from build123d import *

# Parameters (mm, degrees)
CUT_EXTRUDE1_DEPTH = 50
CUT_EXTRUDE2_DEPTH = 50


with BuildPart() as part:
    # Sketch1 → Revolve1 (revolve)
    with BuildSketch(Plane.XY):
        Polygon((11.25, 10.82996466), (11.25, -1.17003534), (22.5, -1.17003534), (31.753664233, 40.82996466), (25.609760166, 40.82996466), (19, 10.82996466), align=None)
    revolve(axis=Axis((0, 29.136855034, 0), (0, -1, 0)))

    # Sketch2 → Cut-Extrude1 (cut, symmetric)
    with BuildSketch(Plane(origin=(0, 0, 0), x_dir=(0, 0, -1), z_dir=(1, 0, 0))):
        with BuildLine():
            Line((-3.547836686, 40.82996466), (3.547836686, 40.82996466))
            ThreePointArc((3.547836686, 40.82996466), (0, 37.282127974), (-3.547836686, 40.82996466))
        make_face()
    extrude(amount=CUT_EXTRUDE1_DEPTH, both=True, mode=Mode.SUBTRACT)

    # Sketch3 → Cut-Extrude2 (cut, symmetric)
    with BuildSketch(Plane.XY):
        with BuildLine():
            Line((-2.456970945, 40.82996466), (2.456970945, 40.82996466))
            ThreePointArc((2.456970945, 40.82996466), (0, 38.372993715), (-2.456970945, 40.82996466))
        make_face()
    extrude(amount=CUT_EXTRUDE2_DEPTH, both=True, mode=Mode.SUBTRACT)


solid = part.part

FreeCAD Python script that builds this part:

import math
import FreeCAD as App
import Part
import Sketcher
from FreeCAD import Vector
Q = App.Units.Quantity

doc = App.newDocument("Part")
params = doc.addObject("Spreadsheet::Sheet", "Params")
for row, (alias, value) in enumerate([
    ("sketch1_height", "12 mm"),
    ("sketch1_width", "11.25 mm"),
    ("sketch1_width2", "7.75 mm"),
    ("revolution_angle", "360 deg"),
    ("pocket1_length", "100 mm"),
    ("pocket2_length", "100 mm"),
], start=1):
    params.set(f"A{row}", alias)
    params.set(f"B{row}", "=" + value)
    params.setAlias(f"B{row}", alias)

body = doc.addObject("PartDesign::Body", "Body")

sketch1 = body.newObject("Sketcher::SketchObject", "Sketch")
sketch1.AttachmentSupport = (doc.getObject("XY_Plane"), [""])
sketch1.MapMode = "FlatFace"
sketch1.addGeometry(Part.LineSegment(Vector(11, 11, 0), Vector(11, -1, 0)), False)
sketch1.addGeometry(Part.LineSegment(Vector(11, -1, 0), Vector(22, -1, 0)), False)
sketch1.addGeometry(Part.LineSegment(Vector(22, -1, 0), Vector(32, 41, 0)), False)
sketch1.addGeometry(Part.LineSegment(Vector(32, 41, 0), Vector(26, 41, 0)), False)
sketch1.addGeometry(Part.LineSegment(Vector(26, 41, 0), Vector(19, 11, 0)), False)
sketch1.addGeometry(Part.LineSegment(Vector(19, 11, 0), Vector(11, 11, 0)), False)
sketch1.addConstraint(Sketcher.Constraint("Coincident", 0, 2, 1, 1))
sketch1.addConstraint(Sketcher.Constraint("Coincident", 1, 2, 2, 1))
sketch1.addConstraint(Sketcher.Constraint("Coincident", 2, 2, 3, 1))
sketch1.addConstraint(Sketcher.Constraint("Coincident", 3, 2, 4, 1))
sketch1.addConstraint(Sketcher.Constraint("Coincident", 4, 2, 5, 1))
sketch1.addConstraint(Sketcher.Constraint("Coincident", 5, 2, 0, 1))
sketch1.addConstraint(Sketcher.Constraint("Vertical", 0))
sketch1.addConstraint(Sketcher.Constraint("Horizontal", 1))
sketch1.addConstraint(Sketcher.Constraint("Horizontal", 3))
sketch1.addConstraint(Sketcher.Constraint("Horizontal", 5))
sketch1.addConstraint(Sketcher.Constraint("Parallel", 2, 4))
sketch1.addConstraint(Sketcher.Constraint("DistanceY", 0, 2, 0, 1, Q("12 mm")))
sketch1.addConstraint(Sketcher.Constraint("DistanceX", -1, 1, 4, 2, Q("19 mm")))
sketch1.addConstraint(Sketcher.Constraint("DistanceY", 1, 2, 2, 2, Q("42 mm")))
sketch1.addConstraint(Sketcher.Constraint("DistanceX", 1, 1, 1, 2, Q("11.25 mm")))
sketch1.addConstraint(Sketcher.Constraint("DistanceX", 5, 2, 5, 1, Q("7.75 mm")))
sketch1.addConstraint(Sketcher.Constraint("Distance", 2, Q("43.007328 mm")))
sketch1.addConstraint(Sketcher.Constraint("DistanceY", 0, 2, -1, 1, Q("1.170035 mm")))
sketch1.setExpression("Constraints[11]", "Params.sketch1_height")
sketch1.setExpression("Constraints[14]", "Params.sketch1_width")
sketch1.setExpression("Constraints[15]", "Params.sketch1_width2")
revolution = body.newObject("PartDesign::Revolution", "Revolution")
revolution.Profile = sketch1
revolution.ReferenceAxis = (sketch1, ["V_Axis"])
revolution.setExpression("Angle", "Params.revolution_angle")

sketch2 = body.newObject("Sketcher::SketchObject", "Sketch001")
sketch2.AttachmentSupport = (doc.getObject("YZ_Plane"), [""])
sketch2.MapMode = "FlatFace"
sketch2.addGeometry(Part.LineSegment(Vector(40.8, -3.5, 0), Vector(40.8, 3.5, 0)), False)
sketch2.addGeometry(Part.ArcOfCircle(Part.Circle(Vector(40.8, 0, 0), Vector(0, 0, 1), 3.5), math.radians(90), math.radians(270)), False)
sketch2.addConstraint(Sketcher.Constraint("Coincident", 0, 1, 1, 2))
sketch2.addConstraint(Sketcher.Constraint("Coincident", 1, 1, 0, 2))
sketch2.addConstraint(Sketcher.Constraint("Vertical", 0))
sketch2.addConstraint(Sketcher.Constraint("PointOnObject", 1, 3, -1))
sketch2.addConstraint(Sketcher.Constraint("Vertical", 1, 3, 0, 1))
sketch2.addConstraint(Sketcher.Constraint("Radius", 1, Q("3.547837 mm")))
sketch2.addConstraint(Sketcher.Constraint("DistanceX", -1, 1, 1, 3, Q("40.829965 mm")))
pocket1 = body.newObject("PartDesign::Pocket", "Pocket")
pocket1.Profile = sketch2
pocket1.setExpression("Length", "Params.pocket1_length")
pocket1.Midplane = True

sketch3 = body.newObject("Sketcher::SketchObject", "Sketch002")
sketch3.AttachmentSupport = (doc.getObject("XY_Plane"), [""])
sketch3.MapMode = "FlatFace"
sketch3.addGeometry(Part.LineSegment(Vector(2.5, 40.8, 0), Vector(-2.5, 40.8, 0)), False)
sketch3.addGeometry(Part.ArcOfCircle(Part.Circle(Vector(0, 40.8, 0), Vector(0, 0, 1), 2.5), math.radians(180), math.radians(360)), False)
sketch3.addConstraint(Sketcher.Constraint("Coincident", 0, 1, 1, 2))
sketch3.addConstraint(Sketcher.Constraint("Coincident", 1, 1, 0, 2))
sketch3.addConstraint(Sketcher.Constraint("Horizontal", 0))
sketch3.addConstraint(Sketcher.Constraint("PointOnObject", 1, 3, -2))
sketch3.addConstraint(Sketcher.Constraint("Horizontal", 1, 3, 0, 1))
sketch3.addConstraint(Sketcher.Constraint("Radius", 1, Q("2.456971 mm")))
sketch3.addConstraint(Sketcher.Constraint("DistanceY", -1, 1, 1, 3, Q("40.829965 mm")))
pocket2 = body.newObject("PartDesign::Pocket", "Pocket001")
pocket2.Profile = sketch3
pocket2.setExpression("Length", "Params.pocket2_length")
pocket2.Midplane = True

doc.recompute()
